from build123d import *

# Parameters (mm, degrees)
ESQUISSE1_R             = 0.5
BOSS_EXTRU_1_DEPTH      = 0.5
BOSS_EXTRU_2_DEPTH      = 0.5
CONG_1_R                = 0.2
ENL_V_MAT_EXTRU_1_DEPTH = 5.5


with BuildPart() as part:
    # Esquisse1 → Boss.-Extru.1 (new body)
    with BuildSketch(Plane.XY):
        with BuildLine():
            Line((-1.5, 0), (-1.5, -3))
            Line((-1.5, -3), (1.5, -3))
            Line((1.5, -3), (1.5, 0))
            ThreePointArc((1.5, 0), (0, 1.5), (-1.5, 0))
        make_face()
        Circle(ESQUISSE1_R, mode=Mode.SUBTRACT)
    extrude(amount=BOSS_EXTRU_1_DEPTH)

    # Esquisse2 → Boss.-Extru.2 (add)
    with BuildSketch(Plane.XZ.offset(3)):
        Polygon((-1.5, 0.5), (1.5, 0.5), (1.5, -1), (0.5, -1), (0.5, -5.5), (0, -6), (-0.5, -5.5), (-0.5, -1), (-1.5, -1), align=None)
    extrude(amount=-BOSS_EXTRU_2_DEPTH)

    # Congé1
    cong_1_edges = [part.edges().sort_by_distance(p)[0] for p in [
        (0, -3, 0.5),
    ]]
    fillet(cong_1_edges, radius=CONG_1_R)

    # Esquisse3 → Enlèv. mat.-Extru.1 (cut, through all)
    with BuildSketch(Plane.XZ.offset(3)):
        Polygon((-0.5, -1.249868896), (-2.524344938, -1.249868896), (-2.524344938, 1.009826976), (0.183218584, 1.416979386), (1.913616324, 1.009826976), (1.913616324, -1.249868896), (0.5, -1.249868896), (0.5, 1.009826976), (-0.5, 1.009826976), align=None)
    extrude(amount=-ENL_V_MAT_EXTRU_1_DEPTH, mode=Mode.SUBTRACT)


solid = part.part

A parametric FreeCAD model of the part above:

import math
import FreeCAD as App
import Part
import Sketcher

V = App.Vector
Q = App.Units.Quantity


def edges_at(feature, points):
    """Names of the edges that pass closest to the given points."""
    edges = feature.Shape.Edges
    near = lambda p: min(range(len(edges)), key=lambda i: edges[i].distToShape(Part.Vertex(*p))[0])
    return sorted({f"Edge{near(p) + 1}" for p in points})

doc = App.newDocument("Part")
body = doc.addObject("PartDesign::Body", "Body")
body.AllowCompound = True

sketch1 = body.newObject("Sketcher::SketchObject", "Sketch")
sketch1.AttachmentSupport = (doc.getObject("XY_Plane"), [""])
sketch1.MapMode = "FlatFace"
sketch1.addGeometry(Part.LineSegment(V(-1.5, 0, 0), V(-1.5, -3, 0)), False)
sketch1.addGeometry(Part.LineSegment(V(-1.5, -3, 0), V(1.5, -3, 0)), False)
sketch1.addGeometry(Part.LineSegment(V(1.5, -3, 0), V(1.5, 0, 0)), False)
sketch1.addGeometry(Part.ArcOfCircle(Part.Circle(V(0, 0, 0), V(0, 0, 1), 1.5), math.radians(0), math.radians(180)), False)
sketch1.addGeometry(Part.Circle(V(0, 0, 0), V(0, 0, 1), 0.5), False)
sketch1.addConstraint(Sketcher.Constraint("Coincident", 0, 2, 1, 1))
sketch1.addConstraint(Sketcher.Constraint("Coincident", 1, 2, 2, 1))
sketch1.addConstraint(Sketcher.Constraint("Tangent", 2, 2, 3, 1))
sketch1.addConstraint(Sketcher.Constraint("Tangent", 3, 2, 0, 1))
sketch1.addConstraint(Sketcher.Constraint("Vertical", 0))
sketch1.addConstraint(Sketcher.Constraint("Horizontal", 1))
sketch1.addConstraint(Sketcher.Constraint("Vertical", 2))
sketch1.addConstraint(Sketcher.Constraint("Coincident", 3, 3, -1, 1))
sketch1.addConstraint(Sketcher.Constraint("Coincident", 4, 3, -1, 1))
sketch1.addConstraint(Sketcher.Constraint("Equal", 1, 0))
sketch1.addConstraint(Sketcher.Constraint("Diameter", 4, Q("1 mm")))
sketch1.addConstraint(Sketcher.Constraint("Radius", 3, Q("1.5 mm")))
pad1 = body.newObject("PartDesign::Pad", "Pad")
pad1.Profile = sketch1
pad1.Length = 0.5

sketch2 = body.newObject("Sketcher::SketchObject", "Sketch001")
sketch2.AttachmentSupport = (doc.getObject("XZ_Plane"), [""])
sketch2.MapMode = "FlatFace"
sketch2.AttachmentOffset = App.Placement(V(0, 0, 3), App.Rotation())
sketch2.addGeometry(Part.LineSegment(V(1.5, 0.5, 0), V(-1.5, 0.5, 0)), False)
sketch2.addGeometry(Part.LineSegment(V(-1.5, 0.5, 0), V(-1.5, -1, 0)), False)
sketch2.addGeometry(Part.LineSegment(V(-1.5, -1, 0), V(-0.5, -1, 0)), False)
sketch2.addGeometry(Part.LineSegment(V(-0.5, -1, 0), V(-0.5, -5.5, 0)), False)
sketch2.addGeometry(Part.LineSegment(V(-0.5, -5.5, 0), V(0, -6, 0)), False)
sketch2.addGeometry(Part.LineSegment(V(0, -6, 0), V(0.5, -5.5, 0)), False)
sketch2.addGeometry(Part.LineSegment(V(0.5, -5.5, 0), V(0.5, -1, 0)), False)
sketch2.addGeometry(Part.LineSegment(V(0.5, -1, 0), V(1.5, -1, 0)), False)
sketch2.addGeometry(Part.LineSegment(V(1.5, -1, 0), V(1.5, 0.5, 0)), False)
sketch2.addConstraint(Sketcher.Constraint("Coincident", 0, 2, 1, 1))
sketch2.addConstraint(Sketcher.Constraint("Coincident", 1, 2, 2, 1))
sketch2.addConstraint(Sketcher.Constraint("Coincident", 2, 2, 3, 1))
sketch2.addConstraint(Sketcher.Constraint("Coincident", 3, 2, 4, 1))
sketch2.addConstraint(Sketcher.Constraint("Coincident", 4, 2, 5, 1))
sketch2.addConstraint(Sketcher.Constraint("Coincident", 5, 2, 6, 1))
sketch2.addConstraint(Sketcher.Constraint("Coincident", 6, 2, 7, 1))
sketch2.addConstraint(Sketcher.Constraint("Coincident", 7, 2, 8, 1))
sketch2.addConstraint(Sketcher.Constraint("Coincident", 8, 2, 0, 1))
sketch2.addConstraint(Sketcher.Constraint("Horizontal", 0))
sketch2.addConstraint(Sketcher.Constraint("Vertical", 1))
sketch2.addConstraint(Sketcher.Constraint("Horizontal", 2))
sketch2.addConstraint(Sketcher.Constraint("Vertical", 3))
sketch2.addConstraint(Sketcher.Constraint("Vertical", 6))
sketch2.addConstraint(Sketcher.Constraint("Horizontal", 7))
sketch2.addConstraint(Sketcher.Constraint("Vertical", 8))
sketch2.addConstraint(Sketcher.Constraint("Symmetric", 3, 2, 5, 2, -2))
sketch2.addConstraint(Sketcher.Constraint("Symmetric", 1, 2, 7, 2, -2))
sketch2.addConstraint(Sketcher.Constraint("PointOnObject", 4, 2, -2))
sketch2.addConstraint(Sketcher.Constraint("Perpendicular", 4, 5))
sketch2.addConstraint(Sketcher.Constraint("DistanceX", 0, 2, 0, 1, Q("3 mm")))
sketch2.addConstraint(Sketcher.Constraint("DistanceX", 2, 1, 2, 2, Q("1 mm")))
sketch2.addConstraint(Sketcher.Constraint("DistanceY", 1, 2, 1, 1, Q("1.5 mm")))
sketch2.addConstraint(Sketcher.Constraint("DistanceY", 3, 2, 3, 1, Q("4.5 mm")))
sketch2.addConstraint(Sketcher.Constraint("DistanceY", 1, 2, -1, 1, Q("1 mm")))
pad2 = body.newObject("PartDesign::Pad", "Pad001")
pad2.Profile = sketch2
pad2.Length = 0.5
pad2.Reversed = True
doc.recompute()

fillet = body.newObject("PartDesign::Fillet", "Fillet")
fillet.Base = (pad2, edges_at(pad2, [(0, -3, 0.5)]))
fillet.Radius = 0.2

sketch3 = body.newObject("Sketcher::SketchObject", "Sketch002")
sketch3.AttachmentSupport = (doc.getObject("XZ_Plane"), [""])
sketch3.MapMode = "FlatFace"
sketch3.AttachmentOffset = App.Placement(V(0, 0, 3), App.Rotation())
sketch3.addGeometry(Part.LineSegment(V(-2.5, -1.2, 0), V(-0.5, -1.2, 0)), False)
sketch3.addGeometry(Part.LineSegment(V(-0.5, -1.2, 0), V(-0.5, 1, 0)), False)
sketch3.addGeometry(Part.LineSegment(V(-0.5, 1, 0), V(0.5, 1, 0)), False)
sketch3.addGeometry(Part.LineSegment(V(0.5, 1, 0), V(0.5, -1.2, 0)), False)
sketch3.addGeometry(Part.LineSegment(V(0.5, -1.2, 0), V(1.9, -1.2, 0)), False)
sketch3.addGeometry(Part.LineSegment(V(1.9, -1.2, 0), V(1.9, 1, 0)), False)
sketch3.addGeometry(Part.LineSegment(V(1.9, 1, 0), V(0.2, 1.4, 0)), False)
sketch3.addGeometry(Part.LineSegment(V(0.2, 1.4, 0), V(-2.5, 1, 0)), False)
sketch3.addGeometry(Part.LineSegment(V(-2.5, 1, 0), V(-2.5, -1.2, 0)), False)
sketch3.addConstraint(Sketcher.Constraint("Coincident", 0, 2, 1, 1))
sketch3.addConstraint(Sketcher.Constraint("Coincident", 1, 2, 2, 1))
sketch3.addConstraint(Sketcher.Constraint("Coincident", 2, 2, 3, 1))
sketch3.addConstraint(Sketcher.Constraint("Coincident", 3, 2, 4, 1))
sketch3.addConstraint(Sketcher.Constraint("Coincident", 4, 2, 5, 1))
sketch3.addConstraint(Sketcher.Constraint("Coincident", 5, 2, 6, 1))
sketch3.addConstraint(Sketcher.Constraint("Coincident", 6, 2, 7, 1))
sketch3.addConstraint(Sketcher.Constraint("Coincident", 7, 2, 8, 1))
sketch3.addConstraint(Sketcher.Constraint("Coincident", 8, 2, 0, 1))
sketch3.addConstraint(Sketcher.Constraint("Horizontal", 0))
sketch3.addConstraint(Sketcher.Constraint("Vertical", 1))
sketch3.addConstraint(Sketcher.Constraint("Horizontal", 2))
sketch3.addConstraint(Sketcher.Constraint("Vertical", 3))
sketch3.addConstraint(Sketcher.Constraint("Horizontal", 4))
sketch3.addConstraint(Sketcher.Constraint("Vertical", 5))
sketch3.addConstraint(Sketcher.Constraint("Vertical", 8))
sketch3.addConstraint(Sketcher.Constraint("Symmetric", 0, 2, 3, 2, -2))
sketch3.addConstraint(Sketcher.Constraint("Horizontal", 2, 2, 5, 2))
sketch3.addConstraint(Sketcher.Constraint("Horizontal", 5, 2, 7, 2))
sketch3.addConstraint(Sketcher.Constraint("DistanceX", 2, 1, 2, 2, Q("1 mm")))
sketch3.addConstraint(Sketcher.Constraint("DistanceX", 0, 1, 0, 2, Q("2.024345 mm")))
sketch3.addConstraint(Sketcher.Constraint("DistanceX", 4, 1, 4, 2, Q("1.413616 mm")))
sketch3.addConstraint(Sketcher.Constraint("DistanceY", 1, 1, 1, 2, Q("2.259696 mm")))
sketch3.addConstraint(Sketcher.Constraint("DistanceY", 0, 2, -1, 1, Q("1.249869 mm")))
sketch3.addConstraint(Sketcher.Constraint("DistanceX", -1, 1, 6, 2, Q("0.183219 mm")))
sketch3.addConstraint(Sketcher.Constraint("DistanceY", -1, 1, 6, 2, Q("1.416979 mm")))
pocket1 = body.newObject("PartDesign::Pocket", "Pocket")
pocket1.Profile = sketch3
pocket1.Type = "ThroughAll"

doc.recompute()
